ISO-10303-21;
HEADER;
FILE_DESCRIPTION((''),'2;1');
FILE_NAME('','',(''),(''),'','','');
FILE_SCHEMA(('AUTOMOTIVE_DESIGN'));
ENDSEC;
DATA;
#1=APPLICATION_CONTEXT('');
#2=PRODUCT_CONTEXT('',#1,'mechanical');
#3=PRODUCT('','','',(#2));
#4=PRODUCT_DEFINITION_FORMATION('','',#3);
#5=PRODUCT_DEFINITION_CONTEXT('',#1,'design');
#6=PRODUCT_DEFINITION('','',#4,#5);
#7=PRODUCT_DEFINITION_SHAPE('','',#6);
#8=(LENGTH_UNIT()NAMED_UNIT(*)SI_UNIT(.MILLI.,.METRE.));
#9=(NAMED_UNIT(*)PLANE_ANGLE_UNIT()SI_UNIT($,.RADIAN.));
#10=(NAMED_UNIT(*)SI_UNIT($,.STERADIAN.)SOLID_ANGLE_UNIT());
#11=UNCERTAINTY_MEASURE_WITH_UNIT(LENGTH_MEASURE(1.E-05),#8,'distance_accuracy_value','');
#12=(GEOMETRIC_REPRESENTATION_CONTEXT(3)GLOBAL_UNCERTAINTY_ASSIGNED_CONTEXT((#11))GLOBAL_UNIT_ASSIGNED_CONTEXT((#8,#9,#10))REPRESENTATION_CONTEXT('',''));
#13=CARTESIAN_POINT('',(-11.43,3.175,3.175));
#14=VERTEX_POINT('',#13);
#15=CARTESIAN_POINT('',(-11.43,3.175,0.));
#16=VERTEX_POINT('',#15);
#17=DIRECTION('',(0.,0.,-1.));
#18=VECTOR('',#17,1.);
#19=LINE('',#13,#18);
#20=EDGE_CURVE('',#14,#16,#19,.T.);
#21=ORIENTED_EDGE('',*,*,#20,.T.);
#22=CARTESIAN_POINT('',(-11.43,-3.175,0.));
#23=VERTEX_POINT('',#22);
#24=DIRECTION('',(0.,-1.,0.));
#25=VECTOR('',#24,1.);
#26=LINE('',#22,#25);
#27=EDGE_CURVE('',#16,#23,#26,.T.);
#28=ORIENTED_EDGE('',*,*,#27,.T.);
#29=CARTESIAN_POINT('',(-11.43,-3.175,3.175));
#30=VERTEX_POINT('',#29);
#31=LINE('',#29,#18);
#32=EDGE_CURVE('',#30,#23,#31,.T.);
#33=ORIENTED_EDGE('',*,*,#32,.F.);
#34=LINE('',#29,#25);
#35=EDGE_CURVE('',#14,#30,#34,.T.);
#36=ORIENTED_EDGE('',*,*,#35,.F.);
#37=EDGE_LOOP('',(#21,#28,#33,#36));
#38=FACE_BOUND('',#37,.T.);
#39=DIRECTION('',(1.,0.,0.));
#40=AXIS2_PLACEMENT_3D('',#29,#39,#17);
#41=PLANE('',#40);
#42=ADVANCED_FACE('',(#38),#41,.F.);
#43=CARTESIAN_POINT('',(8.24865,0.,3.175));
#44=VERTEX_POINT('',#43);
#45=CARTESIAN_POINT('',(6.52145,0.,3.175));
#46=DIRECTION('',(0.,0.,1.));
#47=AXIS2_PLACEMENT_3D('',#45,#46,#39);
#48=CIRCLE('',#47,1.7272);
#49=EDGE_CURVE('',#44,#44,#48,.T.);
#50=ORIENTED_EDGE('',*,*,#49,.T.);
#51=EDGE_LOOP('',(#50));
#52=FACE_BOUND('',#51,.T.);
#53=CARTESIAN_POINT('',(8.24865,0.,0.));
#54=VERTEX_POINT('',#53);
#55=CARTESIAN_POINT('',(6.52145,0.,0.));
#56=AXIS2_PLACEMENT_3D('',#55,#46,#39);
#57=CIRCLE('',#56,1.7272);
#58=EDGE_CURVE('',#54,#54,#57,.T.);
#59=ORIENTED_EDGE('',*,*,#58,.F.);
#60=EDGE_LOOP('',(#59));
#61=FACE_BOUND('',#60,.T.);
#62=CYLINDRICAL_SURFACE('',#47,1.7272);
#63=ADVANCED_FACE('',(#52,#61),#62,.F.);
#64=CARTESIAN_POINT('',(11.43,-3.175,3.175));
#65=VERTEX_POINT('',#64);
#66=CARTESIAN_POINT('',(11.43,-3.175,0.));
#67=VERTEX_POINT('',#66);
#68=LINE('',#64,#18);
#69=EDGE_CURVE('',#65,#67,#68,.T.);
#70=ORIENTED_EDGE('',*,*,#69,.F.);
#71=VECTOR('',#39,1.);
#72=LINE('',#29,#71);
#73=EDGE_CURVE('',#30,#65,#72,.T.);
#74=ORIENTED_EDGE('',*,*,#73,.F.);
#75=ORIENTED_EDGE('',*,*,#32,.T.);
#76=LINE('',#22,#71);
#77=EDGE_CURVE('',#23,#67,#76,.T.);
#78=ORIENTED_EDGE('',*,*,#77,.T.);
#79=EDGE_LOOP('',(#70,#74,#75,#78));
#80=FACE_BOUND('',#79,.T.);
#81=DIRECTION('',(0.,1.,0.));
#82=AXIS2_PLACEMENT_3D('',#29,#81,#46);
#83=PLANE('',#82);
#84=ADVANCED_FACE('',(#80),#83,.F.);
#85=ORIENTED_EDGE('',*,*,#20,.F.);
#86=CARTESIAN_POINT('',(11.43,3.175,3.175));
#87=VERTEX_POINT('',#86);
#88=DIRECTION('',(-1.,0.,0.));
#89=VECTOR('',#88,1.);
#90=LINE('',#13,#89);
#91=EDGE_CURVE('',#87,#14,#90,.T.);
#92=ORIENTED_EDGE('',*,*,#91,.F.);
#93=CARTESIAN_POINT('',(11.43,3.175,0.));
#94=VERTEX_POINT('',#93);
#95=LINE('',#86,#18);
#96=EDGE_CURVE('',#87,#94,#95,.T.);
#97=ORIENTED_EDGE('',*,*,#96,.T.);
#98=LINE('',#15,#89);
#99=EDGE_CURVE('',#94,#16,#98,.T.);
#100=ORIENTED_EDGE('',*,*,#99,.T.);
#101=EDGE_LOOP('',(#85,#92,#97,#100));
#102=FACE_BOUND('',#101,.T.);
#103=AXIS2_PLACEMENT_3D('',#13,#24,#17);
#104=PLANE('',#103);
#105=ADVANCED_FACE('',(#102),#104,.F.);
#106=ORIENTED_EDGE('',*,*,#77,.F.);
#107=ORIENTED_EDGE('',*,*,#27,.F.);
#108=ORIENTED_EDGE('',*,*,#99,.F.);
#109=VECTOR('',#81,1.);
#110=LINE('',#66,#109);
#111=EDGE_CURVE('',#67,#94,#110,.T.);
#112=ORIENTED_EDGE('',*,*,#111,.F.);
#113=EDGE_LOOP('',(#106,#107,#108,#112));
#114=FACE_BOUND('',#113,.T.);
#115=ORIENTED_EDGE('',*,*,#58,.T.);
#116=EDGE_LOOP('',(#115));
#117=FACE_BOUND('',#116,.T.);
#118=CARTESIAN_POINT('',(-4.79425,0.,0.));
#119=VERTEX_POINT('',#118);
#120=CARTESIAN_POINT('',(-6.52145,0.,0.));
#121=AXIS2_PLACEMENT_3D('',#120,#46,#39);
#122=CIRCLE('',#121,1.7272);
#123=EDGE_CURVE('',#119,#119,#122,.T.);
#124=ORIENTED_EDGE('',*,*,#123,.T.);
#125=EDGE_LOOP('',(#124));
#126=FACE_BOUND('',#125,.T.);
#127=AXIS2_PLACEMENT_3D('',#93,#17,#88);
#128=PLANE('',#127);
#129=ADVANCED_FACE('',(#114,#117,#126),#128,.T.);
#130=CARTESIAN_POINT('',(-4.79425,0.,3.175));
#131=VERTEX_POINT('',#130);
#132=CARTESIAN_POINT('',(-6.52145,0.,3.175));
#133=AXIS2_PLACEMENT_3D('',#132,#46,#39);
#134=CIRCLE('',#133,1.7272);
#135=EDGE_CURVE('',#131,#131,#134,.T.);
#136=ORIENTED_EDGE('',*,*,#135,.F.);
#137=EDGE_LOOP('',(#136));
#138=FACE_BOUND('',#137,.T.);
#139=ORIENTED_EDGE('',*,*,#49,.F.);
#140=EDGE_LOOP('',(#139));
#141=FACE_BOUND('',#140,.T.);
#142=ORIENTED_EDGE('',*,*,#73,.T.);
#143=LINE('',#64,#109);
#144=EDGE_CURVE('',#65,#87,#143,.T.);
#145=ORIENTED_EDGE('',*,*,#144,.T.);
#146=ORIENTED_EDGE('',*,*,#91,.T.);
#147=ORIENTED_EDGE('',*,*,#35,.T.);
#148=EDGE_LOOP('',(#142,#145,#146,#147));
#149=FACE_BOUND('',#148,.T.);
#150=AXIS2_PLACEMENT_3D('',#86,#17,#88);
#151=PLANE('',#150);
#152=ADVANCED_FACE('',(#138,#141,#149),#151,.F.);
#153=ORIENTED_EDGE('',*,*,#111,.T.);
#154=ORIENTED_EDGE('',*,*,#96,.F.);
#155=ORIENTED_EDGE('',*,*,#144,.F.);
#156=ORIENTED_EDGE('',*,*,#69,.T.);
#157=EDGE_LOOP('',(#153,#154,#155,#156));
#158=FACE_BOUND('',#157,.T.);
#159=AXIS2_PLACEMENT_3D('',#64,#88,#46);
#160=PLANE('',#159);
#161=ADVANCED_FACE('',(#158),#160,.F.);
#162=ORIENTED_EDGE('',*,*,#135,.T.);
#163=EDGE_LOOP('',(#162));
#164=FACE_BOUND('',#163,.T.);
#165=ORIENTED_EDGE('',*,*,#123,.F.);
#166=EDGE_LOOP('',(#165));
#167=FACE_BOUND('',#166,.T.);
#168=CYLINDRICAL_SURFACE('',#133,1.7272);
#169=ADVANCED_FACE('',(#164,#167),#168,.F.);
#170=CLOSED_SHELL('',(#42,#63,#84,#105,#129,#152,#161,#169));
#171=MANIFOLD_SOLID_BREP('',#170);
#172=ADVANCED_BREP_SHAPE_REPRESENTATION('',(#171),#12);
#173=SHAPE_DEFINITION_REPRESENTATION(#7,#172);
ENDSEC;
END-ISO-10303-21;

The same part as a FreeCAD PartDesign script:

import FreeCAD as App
import Part
import Sketcher

V = App.Vector
Q = App.Units.Quantity

doc = App.newDocument("Part")
body = doc.addObject("PartDesign::Body", "Body")

# Sketch on XY plane
sketch1 = doc.addObject("Sketcher::SketchObject", "Sketch")
body.addObject(sketch1)
sketch1.AttachmentSupport = (doc.XY_Plane, [""])
sketch1.MapMode = "FlatFace"
sketch1.addGeometry([
    Part.LineSegment(V(-11, 3, 0), V(-11, -3, 0)),
    Part.LineSegment(V(-11, -3, 0), V(11, -3, 0)),
    Part.LineSegment(V(11, -3, 0), V(11, 3, 0)),
    Part.LineSegment(V(11, 3, 0), V(-11, 3, 0)),
], False)
sketch1.addConstraint([
    Sketcher.Constraint("Coincident", 0, 2, 1, 1),
    Sketcher.Constraint("Coincident", 1, 2, 2, 1),
    Sketcher.Constraint("Coincident", 2, 2, 3, 1),
    Sketcher.Constraint("Coincident", 3, 2, 0, 1),
    Sketcher.Constraint("Vertical", 0),
    Sketcher.Constraint("Horizontal", 1),
    Sketcher.Constraint("Vertical", 2),
    Sketcher.Constraint("Horizontal", 3),
    Sketcher.Constraint("Symmetric", 0, 2, 2, 2, -1, 1),
    Sketcher.Constraint("DistanceX", 1, 1, 1, 2, Q("0.9 in")),
    Sketcher.Constraint("DistanceY", 0, 2, 0, 1, Q("0.25 in")),
])
pad1 = doc.addObject("PartDesign::Pad", "Pad")
body.addObject(pad1)
pad1.Profile = sketch1
pad1.Length = Q("0.125 in")

# Sketch on XY plane
sketch2 = doc.addObject("Sketcher::SketchObject", "Sketch001")
body.addObject(sketch2)
sketch2.AttachmentSupport = (doc.XY_Plane, [""])
sketch2.MapMode = "FlatFace"
sketch2.AttachmentOffset = App.Placement(V(0, 0, 0.125 * 25.4), App.Rotation())
sketch2.addGeometry([
    Part.Circle(V(-6.5, 0, 0), V(0, 0, 1), 1.7),
    Part.Circle(V(6.5, 0, 0), V(0, 0, 1), 1.7),
], False)
sketch2.addConstraint([
    Sketcher.Constraint("Equal", 0, 1),
    Sketcher.Constraint("Symmetric", 0, 3, 1, 3, -1, 1),
    Sketcher.Constraint("PointOnObject", 0, 3, -1),
    Sketcher.Constraint("Diameter", 0, Q("0.136 in")),
    Sketcher.Constraint("DistanceX", 0, 3, 1, 3, Q("0.5135 in")),
])
doc.recompute()
hole = doc.addObject("PartDesign::Hole", "Hole")
body.addObject(hole)
hole.Profile = sketch2
hole.ThreadType = "None"
hole.Diameter = Q("0.136 in")
hole.DepthType = "ThroughAll"

doc.recompute()
